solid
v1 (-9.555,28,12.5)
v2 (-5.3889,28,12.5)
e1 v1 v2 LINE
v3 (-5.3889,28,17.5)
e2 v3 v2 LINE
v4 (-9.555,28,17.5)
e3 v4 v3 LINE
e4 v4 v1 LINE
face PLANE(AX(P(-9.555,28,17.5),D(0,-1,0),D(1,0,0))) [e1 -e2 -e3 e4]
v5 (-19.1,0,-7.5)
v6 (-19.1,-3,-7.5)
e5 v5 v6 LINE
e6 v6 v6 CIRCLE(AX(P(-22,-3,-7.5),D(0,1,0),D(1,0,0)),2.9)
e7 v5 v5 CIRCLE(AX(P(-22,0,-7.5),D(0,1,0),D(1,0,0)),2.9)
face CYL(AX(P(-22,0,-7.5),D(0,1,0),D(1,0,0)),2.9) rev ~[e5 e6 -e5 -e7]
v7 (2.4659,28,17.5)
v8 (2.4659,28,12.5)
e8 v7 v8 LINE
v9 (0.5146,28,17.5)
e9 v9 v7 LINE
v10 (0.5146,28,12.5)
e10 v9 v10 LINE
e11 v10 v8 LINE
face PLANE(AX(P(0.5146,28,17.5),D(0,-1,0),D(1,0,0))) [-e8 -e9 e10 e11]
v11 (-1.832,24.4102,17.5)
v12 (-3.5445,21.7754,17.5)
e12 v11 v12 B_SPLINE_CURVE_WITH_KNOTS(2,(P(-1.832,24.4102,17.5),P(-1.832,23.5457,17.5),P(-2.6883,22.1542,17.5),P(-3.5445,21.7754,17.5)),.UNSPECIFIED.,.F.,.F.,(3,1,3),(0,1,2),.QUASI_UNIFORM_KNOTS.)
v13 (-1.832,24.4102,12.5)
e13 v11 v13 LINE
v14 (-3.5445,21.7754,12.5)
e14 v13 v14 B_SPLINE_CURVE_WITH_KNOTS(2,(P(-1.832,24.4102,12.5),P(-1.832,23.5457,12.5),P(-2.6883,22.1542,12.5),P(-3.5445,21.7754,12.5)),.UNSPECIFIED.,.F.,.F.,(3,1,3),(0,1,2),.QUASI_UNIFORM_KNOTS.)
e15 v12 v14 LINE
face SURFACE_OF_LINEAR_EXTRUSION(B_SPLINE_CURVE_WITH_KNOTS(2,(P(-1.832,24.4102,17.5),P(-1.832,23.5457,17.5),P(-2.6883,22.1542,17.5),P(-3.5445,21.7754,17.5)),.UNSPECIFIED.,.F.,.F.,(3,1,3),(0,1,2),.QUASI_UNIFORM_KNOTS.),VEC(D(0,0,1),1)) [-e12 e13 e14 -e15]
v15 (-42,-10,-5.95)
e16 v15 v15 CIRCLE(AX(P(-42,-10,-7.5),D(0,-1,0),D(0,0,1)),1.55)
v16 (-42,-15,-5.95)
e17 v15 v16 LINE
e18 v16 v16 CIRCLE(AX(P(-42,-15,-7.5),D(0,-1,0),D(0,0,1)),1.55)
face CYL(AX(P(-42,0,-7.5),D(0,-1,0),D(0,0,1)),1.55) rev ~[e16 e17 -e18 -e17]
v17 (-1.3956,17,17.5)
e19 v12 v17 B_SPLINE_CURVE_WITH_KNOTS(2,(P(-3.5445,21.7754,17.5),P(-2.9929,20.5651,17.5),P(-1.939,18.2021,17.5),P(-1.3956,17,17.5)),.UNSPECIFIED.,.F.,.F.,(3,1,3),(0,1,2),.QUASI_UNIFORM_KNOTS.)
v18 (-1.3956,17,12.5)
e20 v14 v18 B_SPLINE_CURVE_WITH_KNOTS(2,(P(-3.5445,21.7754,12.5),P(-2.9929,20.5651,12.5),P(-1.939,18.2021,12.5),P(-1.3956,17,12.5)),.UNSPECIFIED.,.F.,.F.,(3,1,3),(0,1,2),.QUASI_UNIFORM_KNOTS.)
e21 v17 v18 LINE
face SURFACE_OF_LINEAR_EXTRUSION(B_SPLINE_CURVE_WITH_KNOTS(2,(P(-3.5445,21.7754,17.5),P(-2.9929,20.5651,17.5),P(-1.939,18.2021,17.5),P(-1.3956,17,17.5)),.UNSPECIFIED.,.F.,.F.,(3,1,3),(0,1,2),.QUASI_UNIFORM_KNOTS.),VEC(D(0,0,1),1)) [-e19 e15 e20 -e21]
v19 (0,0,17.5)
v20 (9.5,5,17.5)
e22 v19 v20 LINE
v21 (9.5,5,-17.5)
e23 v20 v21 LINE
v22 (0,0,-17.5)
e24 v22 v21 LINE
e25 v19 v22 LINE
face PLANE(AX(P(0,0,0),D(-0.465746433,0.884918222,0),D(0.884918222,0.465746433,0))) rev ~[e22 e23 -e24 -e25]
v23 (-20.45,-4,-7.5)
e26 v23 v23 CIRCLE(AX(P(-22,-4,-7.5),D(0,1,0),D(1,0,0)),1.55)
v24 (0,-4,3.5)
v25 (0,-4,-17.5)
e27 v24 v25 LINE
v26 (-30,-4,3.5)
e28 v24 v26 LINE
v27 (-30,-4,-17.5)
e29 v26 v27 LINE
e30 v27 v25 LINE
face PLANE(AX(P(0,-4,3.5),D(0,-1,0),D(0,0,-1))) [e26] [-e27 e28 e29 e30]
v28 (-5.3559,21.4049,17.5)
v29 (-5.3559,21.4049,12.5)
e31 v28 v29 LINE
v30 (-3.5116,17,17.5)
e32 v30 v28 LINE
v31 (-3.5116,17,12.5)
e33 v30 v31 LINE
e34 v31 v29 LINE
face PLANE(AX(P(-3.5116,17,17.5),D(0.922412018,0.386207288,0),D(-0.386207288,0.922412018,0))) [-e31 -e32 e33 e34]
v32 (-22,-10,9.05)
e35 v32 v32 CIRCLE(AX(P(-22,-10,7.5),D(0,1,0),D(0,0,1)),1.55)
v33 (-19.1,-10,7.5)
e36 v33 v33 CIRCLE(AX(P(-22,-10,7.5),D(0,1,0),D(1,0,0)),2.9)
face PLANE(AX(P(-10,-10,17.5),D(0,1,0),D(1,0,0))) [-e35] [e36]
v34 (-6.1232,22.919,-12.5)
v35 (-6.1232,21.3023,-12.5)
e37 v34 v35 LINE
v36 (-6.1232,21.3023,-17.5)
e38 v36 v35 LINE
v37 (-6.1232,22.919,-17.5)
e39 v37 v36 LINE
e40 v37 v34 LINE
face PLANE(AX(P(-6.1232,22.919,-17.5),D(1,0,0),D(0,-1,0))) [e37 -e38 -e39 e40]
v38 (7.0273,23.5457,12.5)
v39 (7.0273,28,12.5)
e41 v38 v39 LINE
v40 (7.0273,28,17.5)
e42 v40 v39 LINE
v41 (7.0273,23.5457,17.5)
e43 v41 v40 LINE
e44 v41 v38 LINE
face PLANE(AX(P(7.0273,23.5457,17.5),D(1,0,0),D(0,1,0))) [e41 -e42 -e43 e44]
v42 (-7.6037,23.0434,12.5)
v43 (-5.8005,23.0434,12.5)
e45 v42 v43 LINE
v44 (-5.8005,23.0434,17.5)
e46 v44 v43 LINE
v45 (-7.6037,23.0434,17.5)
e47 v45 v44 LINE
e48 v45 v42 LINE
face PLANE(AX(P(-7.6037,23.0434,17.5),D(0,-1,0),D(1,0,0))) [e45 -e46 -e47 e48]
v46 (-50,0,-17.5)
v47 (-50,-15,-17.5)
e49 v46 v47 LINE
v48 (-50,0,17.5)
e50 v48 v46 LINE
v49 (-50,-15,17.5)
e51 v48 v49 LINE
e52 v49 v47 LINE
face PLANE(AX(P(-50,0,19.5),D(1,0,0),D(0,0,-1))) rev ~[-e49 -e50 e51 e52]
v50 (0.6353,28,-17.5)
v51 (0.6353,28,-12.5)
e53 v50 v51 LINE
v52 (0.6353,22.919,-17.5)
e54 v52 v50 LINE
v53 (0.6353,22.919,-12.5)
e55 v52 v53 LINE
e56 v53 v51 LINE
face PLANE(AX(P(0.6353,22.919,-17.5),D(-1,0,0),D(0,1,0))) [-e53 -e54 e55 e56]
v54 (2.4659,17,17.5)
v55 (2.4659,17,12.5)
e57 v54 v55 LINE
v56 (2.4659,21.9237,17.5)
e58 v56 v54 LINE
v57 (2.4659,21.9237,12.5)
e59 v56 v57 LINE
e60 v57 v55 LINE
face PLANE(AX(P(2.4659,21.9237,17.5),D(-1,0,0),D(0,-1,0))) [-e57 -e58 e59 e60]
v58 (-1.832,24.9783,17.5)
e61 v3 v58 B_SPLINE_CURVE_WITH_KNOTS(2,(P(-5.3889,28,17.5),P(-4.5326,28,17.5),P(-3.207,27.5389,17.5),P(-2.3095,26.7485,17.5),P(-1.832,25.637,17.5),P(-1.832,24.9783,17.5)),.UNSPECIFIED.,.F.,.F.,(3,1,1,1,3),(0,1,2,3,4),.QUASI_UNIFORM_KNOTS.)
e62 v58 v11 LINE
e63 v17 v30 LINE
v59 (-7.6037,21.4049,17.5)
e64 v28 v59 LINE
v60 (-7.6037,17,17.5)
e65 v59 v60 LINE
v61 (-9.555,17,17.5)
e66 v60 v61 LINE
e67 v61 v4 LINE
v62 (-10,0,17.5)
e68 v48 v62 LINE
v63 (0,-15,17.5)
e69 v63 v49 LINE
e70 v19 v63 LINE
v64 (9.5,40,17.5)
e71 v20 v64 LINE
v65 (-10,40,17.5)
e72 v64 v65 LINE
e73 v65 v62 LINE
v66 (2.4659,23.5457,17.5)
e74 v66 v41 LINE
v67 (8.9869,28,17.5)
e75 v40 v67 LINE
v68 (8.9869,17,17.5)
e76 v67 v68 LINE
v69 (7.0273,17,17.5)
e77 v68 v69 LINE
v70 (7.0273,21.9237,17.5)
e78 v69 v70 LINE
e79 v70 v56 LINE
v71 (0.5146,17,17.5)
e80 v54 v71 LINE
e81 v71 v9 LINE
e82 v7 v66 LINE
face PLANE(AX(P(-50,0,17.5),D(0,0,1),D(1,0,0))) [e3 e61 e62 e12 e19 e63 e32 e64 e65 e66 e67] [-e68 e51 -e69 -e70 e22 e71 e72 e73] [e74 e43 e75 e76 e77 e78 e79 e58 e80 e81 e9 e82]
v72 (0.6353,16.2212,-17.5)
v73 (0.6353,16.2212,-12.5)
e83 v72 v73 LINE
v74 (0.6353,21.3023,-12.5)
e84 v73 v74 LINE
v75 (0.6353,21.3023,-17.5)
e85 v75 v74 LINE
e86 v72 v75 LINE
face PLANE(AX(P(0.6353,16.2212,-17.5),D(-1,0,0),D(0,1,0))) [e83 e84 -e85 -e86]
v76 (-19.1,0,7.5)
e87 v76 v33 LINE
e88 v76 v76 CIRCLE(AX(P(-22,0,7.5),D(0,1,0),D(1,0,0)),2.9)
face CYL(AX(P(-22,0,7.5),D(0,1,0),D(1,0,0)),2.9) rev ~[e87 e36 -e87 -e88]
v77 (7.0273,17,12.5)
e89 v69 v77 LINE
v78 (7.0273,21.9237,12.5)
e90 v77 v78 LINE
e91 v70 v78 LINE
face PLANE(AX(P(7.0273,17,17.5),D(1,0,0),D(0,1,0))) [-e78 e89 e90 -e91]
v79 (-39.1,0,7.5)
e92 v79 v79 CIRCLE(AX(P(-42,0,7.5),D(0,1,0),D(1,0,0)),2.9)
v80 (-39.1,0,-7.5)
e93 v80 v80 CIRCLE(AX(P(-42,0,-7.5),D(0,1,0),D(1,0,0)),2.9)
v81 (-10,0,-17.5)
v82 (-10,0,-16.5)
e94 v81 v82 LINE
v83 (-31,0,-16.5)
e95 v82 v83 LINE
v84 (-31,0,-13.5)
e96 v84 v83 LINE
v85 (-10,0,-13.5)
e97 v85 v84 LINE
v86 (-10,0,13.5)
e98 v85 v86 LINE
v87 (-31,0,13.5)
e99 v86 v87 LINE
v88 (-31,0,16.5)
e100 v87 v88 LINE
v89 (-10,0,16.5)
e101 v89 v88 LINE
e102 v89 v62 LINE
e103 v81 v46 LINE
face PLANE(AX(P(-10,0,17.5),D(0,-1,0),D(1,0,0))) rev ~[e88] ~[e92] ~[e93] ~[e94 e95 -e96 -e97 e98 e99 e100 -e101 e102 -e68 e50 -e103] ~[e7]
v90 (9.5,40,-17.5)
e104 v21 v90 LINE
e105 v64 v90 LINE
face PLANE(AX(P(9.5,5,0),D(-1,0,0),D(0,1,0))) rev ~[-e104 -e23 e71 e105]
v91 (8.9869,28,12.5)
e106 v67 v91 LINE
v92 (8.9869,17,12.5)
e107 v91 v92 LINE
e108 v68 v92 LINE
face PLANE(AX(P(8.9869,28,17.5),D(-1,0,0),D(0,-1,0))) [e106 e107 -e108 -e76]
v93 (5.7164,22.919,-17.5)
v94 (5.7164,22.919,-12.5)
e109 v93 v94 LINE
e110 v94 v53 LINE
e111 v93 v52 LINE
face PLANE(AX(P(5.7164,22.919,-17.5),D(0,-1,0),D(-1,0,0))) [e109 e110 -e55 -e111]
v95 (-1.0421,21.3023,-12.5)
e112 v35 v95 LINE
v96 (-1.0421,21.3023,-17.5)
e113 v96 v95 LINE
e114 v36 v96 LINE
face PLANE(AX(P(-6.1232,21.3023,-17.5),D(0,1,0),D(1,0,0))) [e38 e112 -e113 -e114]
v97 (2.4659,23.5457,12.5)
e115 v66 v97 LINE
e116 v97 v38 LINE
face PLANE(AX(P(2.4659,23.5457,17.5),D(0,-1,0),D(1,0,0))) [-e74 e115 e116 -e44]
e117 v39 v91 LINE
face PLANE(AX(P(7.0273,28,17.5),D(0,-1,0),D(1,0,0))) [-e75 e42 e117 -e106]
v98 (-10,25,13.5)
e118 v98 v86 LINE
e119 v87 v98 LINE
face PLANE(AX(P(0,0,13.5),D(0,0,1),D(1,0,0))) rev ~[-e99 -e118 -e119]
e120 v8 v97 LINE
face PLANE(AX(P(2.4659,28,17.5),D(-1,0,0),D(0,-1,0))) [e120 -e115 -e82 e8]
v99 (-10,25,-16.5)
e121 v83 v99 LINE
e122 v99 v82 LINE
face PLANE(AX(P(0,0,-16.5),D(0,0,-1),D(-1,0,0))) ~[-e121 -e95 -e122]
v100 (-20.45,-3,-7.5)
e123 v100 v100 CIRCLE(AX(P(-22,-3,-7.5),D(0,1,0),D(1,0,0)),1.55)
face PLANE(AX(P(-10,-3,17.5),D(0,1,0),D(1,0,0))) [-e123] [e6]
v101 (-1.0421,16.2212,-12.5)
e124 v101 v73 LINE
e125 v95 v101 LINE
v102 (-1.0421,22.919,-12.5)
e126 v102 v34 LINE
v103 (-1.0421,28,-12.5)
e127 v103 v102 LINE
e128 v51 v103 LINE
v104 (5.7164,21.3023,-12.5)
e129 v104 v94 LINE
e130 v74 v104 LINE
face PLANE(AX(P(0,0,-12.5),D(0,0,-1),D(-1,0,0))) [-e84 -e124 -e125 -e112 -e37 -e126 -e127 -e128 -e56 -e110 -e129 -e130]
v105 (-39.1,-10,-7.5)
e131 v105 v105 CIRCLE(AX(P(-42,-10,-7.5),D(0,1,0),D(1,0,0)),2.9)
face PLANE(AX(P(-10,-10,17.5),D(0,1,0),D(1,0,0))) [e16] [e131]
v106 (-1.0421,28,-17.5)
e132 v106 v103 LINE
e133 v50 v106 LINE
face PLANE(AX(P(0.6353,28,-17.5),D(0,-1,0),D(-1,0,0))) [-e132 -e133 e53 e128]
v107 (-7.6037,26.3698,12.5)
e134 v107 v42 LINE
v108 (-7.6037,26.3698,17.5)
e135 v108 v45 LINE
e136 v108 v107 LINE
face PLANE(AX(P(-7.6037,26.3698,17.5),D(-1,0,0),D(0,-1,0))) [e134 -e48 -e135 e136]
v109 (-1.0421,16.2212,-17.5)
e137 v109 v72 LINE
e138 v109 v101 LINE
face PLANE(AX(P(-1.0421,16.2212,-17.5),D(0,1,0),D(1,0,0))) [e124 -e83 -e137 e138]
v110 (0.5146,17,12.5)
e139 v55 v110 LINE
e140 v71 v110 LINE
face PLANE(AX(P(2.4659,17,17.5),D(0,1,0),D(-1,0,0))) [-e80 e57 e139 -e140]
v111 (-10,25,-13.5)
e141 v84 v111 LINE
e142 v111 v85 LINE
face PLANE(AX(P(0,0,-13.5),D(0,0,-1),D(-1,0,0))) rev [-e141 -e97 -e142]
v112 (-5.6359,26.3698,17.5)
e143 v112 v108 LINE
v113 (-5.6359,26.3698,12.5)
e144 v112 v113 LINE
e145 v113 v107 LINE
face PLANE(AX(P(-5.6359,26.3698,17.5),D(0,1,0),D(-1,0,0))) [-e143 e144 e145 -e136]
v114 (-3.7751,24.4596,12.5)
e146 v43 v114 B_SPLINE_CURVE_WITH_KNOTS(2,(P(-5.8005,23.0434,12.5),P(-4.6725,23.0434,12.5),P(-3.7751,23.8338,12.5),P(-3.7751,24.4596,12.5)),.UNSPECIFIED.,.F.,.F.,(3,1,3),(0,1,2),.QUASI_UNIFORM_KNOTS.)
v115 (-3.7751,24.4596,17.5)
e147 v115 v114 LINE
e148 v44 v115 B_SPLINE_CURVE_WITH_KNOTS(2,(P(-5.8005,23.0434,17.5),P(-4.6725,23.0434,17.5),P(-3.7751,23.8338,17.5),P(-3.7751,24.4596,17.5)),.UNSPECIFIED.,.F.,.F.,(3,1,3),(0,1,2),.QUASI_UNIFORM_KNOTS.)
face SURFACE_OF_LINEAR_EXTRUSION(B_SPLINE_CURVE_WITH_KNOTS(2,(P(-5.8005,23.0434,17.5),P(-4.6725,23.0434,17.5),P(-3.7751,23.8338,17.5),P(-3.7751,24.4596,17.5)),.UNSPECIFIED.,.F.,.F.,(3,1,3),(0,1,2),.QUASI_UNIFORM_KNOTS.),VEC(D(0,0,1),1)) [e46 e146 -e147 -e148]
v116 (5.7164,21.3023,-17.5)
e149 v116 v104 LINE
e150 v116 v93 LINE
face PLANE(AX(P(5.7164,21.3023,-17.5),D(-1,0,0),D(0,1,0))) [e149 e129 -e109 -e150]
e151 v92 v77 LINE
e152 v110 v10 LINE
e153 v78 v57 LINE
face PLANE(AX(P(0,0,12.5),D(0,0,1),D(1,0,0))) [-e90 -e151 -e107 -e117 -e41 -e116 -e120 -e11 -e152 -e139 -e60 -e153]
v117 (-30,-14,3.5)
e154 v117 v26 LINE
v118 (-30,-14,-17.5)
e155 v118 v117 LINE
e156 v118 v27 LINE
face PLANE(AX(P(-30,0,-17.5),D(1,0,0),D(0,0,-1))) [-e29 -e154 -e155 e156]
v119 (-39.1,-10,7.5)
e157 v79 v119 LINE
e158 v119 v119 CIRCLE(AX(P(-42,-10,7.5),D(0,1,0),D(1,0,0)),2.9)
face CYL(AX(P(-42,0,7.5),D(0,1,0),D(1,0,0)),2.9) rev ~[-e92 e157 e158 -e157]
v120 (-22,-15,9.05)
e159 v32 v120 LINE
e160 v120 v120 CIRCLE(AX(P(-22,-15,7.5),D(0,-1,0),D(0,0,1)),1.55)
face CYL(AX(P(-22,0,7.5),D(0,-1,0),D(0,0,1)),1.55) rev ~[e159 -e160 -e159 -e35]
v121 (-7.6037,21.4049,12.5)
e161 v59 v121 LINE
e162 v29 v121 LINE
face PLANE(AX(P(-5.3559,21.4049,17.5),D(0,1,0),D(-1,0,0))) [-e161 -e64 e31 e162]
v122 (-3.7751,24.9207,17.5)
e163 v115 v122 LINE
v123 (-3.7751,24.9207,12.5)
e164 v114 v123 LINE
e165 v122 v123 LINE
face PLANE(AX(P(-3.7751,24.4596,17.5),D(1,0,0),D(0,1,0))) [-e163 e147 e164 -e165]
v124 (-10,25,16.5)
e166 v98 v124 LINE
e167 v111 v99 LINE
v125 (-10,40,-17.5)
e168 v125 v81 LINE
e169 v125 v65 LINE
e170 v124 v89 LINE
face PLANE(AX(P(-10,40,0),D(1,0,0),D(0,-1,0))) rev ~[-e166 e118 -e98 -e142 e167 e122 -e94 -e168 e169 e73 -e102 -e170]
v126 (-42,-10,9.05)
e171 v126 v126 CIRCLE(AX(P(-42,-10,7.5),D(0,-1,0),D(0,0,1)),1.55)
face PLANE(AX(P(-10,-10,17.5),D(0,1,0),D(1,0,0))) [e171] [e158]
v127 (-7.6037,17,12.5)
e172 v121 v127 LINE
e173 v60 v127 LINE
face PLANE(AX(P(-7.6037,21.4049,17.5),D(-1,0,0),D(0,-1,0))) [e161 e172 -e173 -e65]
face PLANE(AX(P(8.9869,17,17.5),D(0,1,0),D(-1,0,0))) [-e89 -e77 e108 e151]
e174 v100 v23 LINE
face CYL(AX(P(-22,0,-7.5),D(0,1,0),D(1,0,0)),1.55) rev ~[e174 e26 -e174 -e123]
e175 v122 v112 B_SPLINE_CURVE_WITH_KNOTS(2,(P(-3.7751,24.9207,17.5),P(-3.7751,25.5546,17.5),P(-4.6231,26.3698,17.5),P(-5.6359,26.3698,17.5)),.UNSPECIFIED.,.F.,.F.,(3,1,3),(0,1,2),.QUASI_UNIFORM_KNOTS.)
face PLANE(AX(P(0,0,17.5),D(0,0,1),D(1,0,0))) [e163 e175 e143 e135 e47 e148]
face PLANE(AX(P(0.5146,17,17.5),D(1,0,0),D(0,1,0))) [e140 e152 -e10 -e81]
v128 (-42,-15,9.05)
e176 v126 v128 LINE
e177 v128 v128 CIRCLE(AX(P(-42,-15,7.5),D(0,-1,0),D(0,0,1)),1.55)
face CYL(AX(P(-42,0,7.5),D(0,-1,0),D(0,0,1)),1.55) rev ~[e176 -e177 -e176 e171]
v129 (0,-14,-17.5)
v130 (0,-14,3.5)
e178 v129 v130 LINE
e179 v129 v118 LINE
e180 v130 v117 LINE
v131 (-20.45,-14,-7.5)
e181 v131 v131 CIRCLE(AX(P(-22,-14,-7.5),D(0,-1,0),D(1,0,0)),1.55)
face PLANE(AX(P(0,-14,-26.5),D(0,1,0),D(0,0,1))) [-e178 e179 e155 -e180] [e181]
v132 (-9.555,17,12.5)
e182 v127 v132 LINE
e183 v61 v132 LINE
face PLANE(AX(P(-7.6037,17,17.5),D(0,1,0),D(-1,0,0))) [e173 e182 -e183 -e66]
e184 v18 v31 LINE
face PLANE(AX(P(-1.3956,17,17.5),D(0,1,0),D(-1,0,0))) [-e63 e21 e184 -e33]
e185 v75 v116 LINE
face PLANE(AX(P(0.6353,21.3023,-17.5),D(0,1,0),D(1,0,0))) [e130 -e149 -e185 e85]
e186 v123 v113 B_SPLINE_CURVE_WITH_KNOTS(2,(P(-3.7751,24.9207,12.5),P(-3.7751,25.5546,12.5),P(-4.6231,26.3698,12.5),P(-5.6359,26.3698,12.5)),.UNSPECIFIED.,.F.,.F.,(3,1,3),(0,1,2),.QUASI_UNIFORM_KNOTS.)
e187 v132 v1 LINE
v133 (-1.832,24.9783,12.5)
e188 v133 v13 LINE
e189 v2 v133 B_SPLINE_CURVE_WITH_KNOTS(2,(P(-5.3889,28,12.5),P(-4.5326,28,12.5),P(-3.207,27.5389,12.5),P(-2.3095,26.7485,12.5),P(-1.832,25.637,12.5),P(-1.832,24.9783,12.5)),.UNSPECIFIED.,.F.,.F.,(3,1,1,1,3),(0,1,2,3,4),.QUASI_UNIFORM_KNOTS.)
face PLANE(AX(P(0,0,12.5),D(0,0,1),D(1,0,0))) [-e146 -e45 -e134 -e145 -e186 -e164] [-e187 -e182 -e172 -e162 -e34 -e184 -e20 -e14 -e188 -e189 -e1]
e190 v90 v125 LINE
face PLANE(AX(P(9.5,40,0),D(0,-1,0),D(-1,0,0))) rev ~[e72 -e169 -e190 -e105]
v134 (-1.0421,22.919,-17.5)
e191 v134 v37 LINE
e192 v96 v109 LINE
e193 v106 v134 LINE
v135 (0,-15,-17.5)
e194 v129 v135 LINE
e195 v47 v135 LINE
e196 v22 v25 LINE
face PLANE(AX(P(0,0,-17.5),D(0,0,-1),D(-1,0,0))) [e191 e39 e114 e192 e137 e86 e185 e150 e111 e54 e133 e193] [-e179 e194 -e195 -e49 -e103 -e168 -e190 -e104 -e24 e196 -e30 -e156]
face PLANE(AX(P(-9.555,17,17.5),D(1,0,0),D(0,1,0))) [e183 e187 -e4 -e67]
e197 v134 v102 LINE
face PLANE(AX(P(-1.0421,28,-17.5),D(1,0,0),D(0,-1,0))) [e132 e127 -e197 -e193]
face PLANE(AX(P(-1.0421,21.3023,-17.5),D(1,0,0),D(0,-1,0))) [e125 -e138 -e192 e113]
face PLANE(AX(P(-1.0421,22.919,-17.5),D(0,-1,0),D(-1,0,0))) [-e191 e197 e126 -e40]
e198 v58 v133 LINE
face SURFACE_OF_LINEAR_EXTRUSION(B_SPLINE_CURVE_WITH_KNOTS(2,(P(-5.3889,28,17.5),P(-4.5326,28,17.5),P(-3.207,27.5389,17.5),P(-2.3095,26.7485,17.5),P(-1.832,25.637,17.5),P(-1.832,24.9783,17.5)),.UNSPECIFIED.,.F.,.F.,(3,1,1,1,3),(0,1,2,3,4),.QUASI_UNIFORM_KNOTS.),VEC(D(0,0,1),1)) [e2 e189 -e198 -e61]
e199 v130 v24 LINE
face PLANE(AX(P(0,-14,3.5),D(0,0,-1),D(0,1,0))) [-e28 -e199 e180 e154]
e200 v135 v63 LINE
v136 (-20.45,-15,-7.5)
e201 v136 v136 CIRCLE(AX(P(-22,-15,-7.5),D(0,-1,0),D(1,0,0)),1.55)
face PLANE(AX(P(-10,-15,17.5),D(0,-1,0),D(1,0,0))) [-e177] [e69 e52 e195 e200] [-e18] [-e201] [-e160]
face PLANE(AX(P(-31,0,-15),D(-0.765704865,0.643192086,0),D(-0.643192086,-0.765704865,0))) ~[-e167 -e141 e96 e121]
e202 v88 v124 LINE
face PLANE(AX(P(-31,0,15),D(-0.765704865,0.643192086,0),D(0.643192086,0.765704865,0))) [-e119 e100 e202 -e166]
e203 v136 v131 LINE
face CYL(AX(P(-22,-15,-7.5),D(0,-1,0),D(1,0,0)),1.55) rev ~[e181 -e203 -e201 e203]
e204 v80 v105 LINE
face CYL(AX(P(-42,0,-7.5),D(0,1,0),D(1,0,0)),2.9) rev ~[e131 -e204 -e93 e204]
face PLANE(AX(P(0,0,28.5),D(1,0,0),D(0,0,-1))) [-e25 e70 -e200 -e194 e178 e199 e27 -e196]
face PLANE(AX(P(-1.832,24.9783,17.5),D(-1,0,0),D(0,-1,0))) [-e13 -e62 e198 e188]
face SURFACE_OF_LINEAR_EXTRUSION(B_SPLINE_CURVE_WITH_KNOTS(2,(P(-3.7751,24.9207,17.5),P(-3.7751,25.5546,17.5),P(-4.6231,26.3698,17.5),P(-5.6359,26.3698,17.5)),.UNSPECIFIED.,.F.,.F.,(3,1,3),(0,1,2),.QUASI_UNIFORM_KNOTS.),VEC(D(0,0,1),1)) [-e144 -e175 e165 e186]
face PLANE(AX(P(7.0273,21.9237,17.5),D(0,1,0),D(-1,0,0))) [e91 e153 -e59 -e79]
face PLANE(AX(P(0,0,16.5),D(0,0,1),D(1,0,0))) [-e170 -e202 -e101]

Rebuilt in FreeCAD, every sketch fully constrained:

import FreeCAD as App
import Part
import Sketcher
from FreeCAD import Vector
Q = App.Units.Quantity


def add_polygon(sketch, points):
    """Adds a closed chain of lines whose ends are joined by coincident constraints."""
    first, n = sketch.GeometryCount, len(points)
    for a, b in zip(points, points[1:] + points[:1]):
        sketch.addGeometry(Part.LineSegment(App.Vector(*a, 0), App.Vector(*b, 0)), False)
    for i in range(n):
        sketch.addConstraint(Sketcher.Constraint("Coincident", first + i, 2, first + (i + 1) % n, 1))

doc = App.newDocument("Part")
params = doc.addObject("Spreadsheet::Sheet", "Params")
for row, (alias, value) in enumerate([
    ("sketch1_width", "10 mm"),
    ("sketch1_height", "40 mm"),
    ("sketch1_height2", "35 mm"),
    ("pad1_length", "35 mm"),
    ("sketch2_width", "21 mm"),
    ("sketch2_height", "25 mm"),
    ("pad2_length", "3 mm"),
    ("sketch3_height", "39 mm"),
    ("sketch3_height2", "57 mm"),
    ("pad3_length", "15 mm"),
    ("sketch4_diameter", "3.1 mm"),
    ("hole_diameter", "3.1 mm"),
    ("sketch5_width", "10 mm"),
    ("sketch5_height", "30 mm"),
    ("pocket1_length", "30 mm"),
    ("sketch6_diameter", "5.8 mm"),
    ("pocket2_length", "3 mm"),
    ("sketch7_diameter", "3.1 mm"),
    ("pocket3_length", "1 mm"),
    ("pocket4_length", "5 mm"),
    ("pocket5_length", "5 mm"),
    ("sketch10_diameter", "5.8 mm"),
    ("sketch10_diameter2", "3.1 mm"),
    ("pocket6_length", "10 mm"),
    ("sketch11_diameter", "3.1 mm"),
    ("pocket7_length", "4 mm"),
    ("sketch12_width", "50 mm"),
    ("sketch12_height", "11 mm"),
    ("sketch12_height2", "2 mm"),
    ("pocket8_length", "30 mm"),
], start=1):
    params.set(f"A{row}", alias)
    params.set(f"B{row}", "=" + value)
    params.setAlias(f"B{row}", alias)

body = doc.addObject("PartDesign::Body", "Body")

sketch1 = doc.addObject("Sketcher::SketchObject", "Sketch")
body.addObject(sketch1)
sketch1.AttachmentSupport = (doc.XY_Plane, [""])
sketch1.MapMode = "FlatFace"
add_polygon(sketch1, [(10, 40), (-10, 40), (-10, 0), (0, 0), (10, 5)])
sketch1.addConstraint(Sketcher.Constraint("Horizontal", 0))
sketch1.addConstraint(Sketcher.Constraint("Vertical", 1))
sketch1.addConstraint(Sketcher.Constraint("Horizontal", 2))
sketch1.addConstraint(Sketcher.Constraint("Vertical", 4))
sketch1.addConstraint(Sketcher.Constraint("Coincident", 2, 2, -1, 1))
sketch1.addConstraint(Sketcher.Constraint("DistanceX", 2, 1, 2, 2, Q("10 mm")))
sketch1.addConstraint(Sketcher.Constraint("DistanceY", 1, 2, 1, 1, Q("40 mm")))
sketch1.addConstraint(Sketcher.Constraint("DistanceY", 4, 1, 4, 2, Q("35 mm")))
sketch1.addConstraint(Sketcher.Constraint("DistanceX", -1, 1, 3, 2, Q("9.5 mm")))
sketch1.setExpression("Constraints[10]", "Params.sketch1_width")
sketch1.setExpression("Constraints[11]", "Params.sketch1_height")
sketch1.setExpression("Constraints[12]", "Params.sketch1_height2")
pad1 = doc.addObject("PartDesign::Pad", "Pad")
body.addObject(pad1)
pad1.Profile = sketch1
pad1.setExpression("Length", "Params.pad1_length")
pad1.Midplane = True

sketch2 = doc.addObject("Sketcher::SketchObject", "Sketch001")
body.addObject(sketch2)
sketch2.AttachmentSupport = (doc.XY_Plane, [""])
sketch2.MapMode = "FlatFace"
sketch2.AttachmentOffset = App.Placement(Vector(0, 0, 15), App.Rotation())
add_polygon(sketch2, [(-10, 0), (-10, 25), (-31, 0)])
sketch2.addConstraint(Sketcher.Constraint("Vertical", 0))
sketch2.addConstraint(Sketcher.Constraint("Horizontal", 2))
sketch2.addConstraint(Sketcher.Constraint("PointOnObject", 1, 2, -1))
sketch2.addConstraint(Sketcher.Constraint("DistanceX", 2, 1, 2, 2, Q("21 mm")))
sketch2.addConstraint(Sketcher.Constraint("DistanceY", 0, 1, 0, 2, Q("25 mm")))
sketch2.addConstraint(Sketcher.Constraint("DistanceX", 0, 2, -1, 1, Q("10 mm")))
sketch2.setExpression("Constraints[6]", "Params.sketch2_width")
sketch2.setExpression("Constraints[7]", "Params.sketch2_height")
pad2 = doc.addObject("PartDesign::Pad", "Pad001")
body.addObject(pad2)
pad2.Profile = sketch2
pad2.setExpression("Length", "Params.pad2_length")
pad2.Midplane = True
doc.recompute()

mirrored = doc.addObject("PartDesign::Mirrored", "Mirrored")
body.addObject(mirrored)
mirrored.Originals = [pad2]
mirrored.MirrorPlane = (doc.XY_Plane, [""])
body.Tip = mirrored

sketch3 = doc.addObject("Sketcher::SketchObject", "Sketch002")
body.addObject(sketch3)
sketch3.AttachmentSupport = (doc.XZ_Plane, [""])
sketch3.MapMode = "FlatFace"
add_polygon(sketch3, [(-25, 28), (-50, 20), (-50, -20), (-25, -28), (0, -28), (0, 28)])
sketch3.addConstraint(Sketcher.Constraint("Vertical", 1))
sketch3.addConstraint(Sketcher.Constraint("Horizontal", 3))
sketch3.addConstraint(Sketcher.Constraint("Vertical", 4))
sketch3.addConstraint(Sketcher.Constraint("Horizontal", 5))
sketch3.addConstraint(Sketcher.Constraint("Symmetric", 3, 2, 4, 2, -1, 1))
sketch3.addConstraint(Sketcher.Constraint("Vertical", 2, 2, 5, 2))
sketch3.addConstraint(Sketcher.Constraint("Equal", 0, 2))
sketch3.addConstraint(Sketcher.Constraint("DistanceY", 1, 2, 1, 1, Q("39 mm")))
sketch3.addConstraint(Sketcher.Constraint("DistanceY", 4, 1, 4, 2, Q("57 mm")))
sketch3.addConstraint(Sketcher.Constraint("DistanceX", 0, 2, -1, 1, Q("50 mm")))
sketch3.addConstraint(Sketcher.Constraint("Angle", 0, Q("-160 deg")))
sketch3.setExpression("Constraints[13]", "Params.sketch3_height")
sketch3.setExpression("Constraints[14]", "Params.sketch3_height2")
pad3 = doc.addObject("PartDesign::Pad", "Pad002")
body.addObject(pad3)
pad3.Profile = sketch3
pad3.setExpression("Length", "Params.pad3_length")

sketch4 = doc.addObject("Sketcher::SketchObject", "Sketch003")
body.addObject(sketch4)
sketch4.AttachmentSupport = (doc.XZ_Plane, [""])
sketch4.MapMode = "FlatFace"
sketch4.addGeometry(Part.Circle(Vector(-42, 7.5, 0), Vector(0, 0, 1), 1.6), False)
sketch4.addGeometry(Part.Circle(Vector(-22, 7.5, 0), Vector(0, 0, 1), 1.6), False)
sketch4.addGeometry(Part.Circle(Vector(-42, -7.5, 0), Vector(0, 0, 1), 1.6), False)
sketch4.addConstraint(Sketcher.Constraint("Equal", 0, 1))
sketch4.addConstraint(Sketcher.Constraint("Equal", 1, 2))
sketch4.addConstraint(Sketcher.Constraint("Symmetric", 0, 3, 2, 3, -1))
sketch4.addConstraint(Sketcher.Constraint("Horizontal", 0, 3, 1, 3))
sketch4.addConstraint(Sketcher.Constraint("Diameter", 0, Q("3.1 mm")))
sketch4.addConstraint(Sketcher.Constraint("DistanceX", 0, 3, -1, 1, Q("42 mm")))
sketch4.addConstraint(Sketcher.Constraint("DistanceX", 1, 3, -1, 1, Q("22 mm")))
sketch4.addConstraint(Sketcher.Constraint("DistanceY", 2, 3, 0, 3, Q("15 mm")))
sketch4.setExpression("Constraints[4]", "Params.sketch4_diameter")
doc.recompute()
hole = doc.addObject("PartDesign::Hole", "Hole")
body.addObject(hole)
hole.Profile = sketch4
hole.ThreadType = "None"
hole.setExpression("Diameter", "Params.hole_diameter")
hole.DepthType = "ThroughAll"
hole.Reversed = True

sketch5 = doc.addObject("Sketcher::SketchObject", "Sketch004")
body.addObject(sketch5)
sketch5.AttachmentSupport = (doc.YZ_Plane, [""])
sketch5.MapMode = "FlatFace"
add_polygon(sketch5, [(-4, -26), (-4, 4), (-14, 4), (-14, -26)])
sketch5.addConstraint(Sketcher.Constraint("Vertical", 0))
sketch5.addConstraint(Sketcher.Constraint("Horizontal", 1))
sketch5.addConstraint(Sketcher.Constraint("Vertical", 2))
sketch5.addConstraint(Sketcher.Constraint("Horizontal", 3))
sketch5.addConstraint(Sketcher.Constraint("DistanceX", 1, 2, 1, 1, Q("10 mm")))
sketch5.addConstraint(Sketcher.Constraint("DistanceY", 0, 1, 0, 2, Q("30 mm")))
sketch5.addConstraint(Sketcher.Constraint("DistanceX", 0, 2, -1, 1, Q("4 mm")))
sketch5.addConstraint(Sketcher.Constraint("DistanceY", -1, 1, 0, 2, Q("3.5 mm")))
sketch5.setExpression("Constraints[8]", "Params.sketch5_width")
sketch5.setExpression("Constraints[9]", "Params.sketch5_height")
pocket1 = doc.addObject("PartDesign::Pocket", "Pocket")
body.addObject(pocket1)
pocket1.Profile = sketch5
pocket1.setExpression("Length", "Params.pocket1_length")

sketch6 = doc.addObject("Sketcher::SketchObject", "Sketch005")
body.addObject(sketch6)
sketch6.AttachmentSupport = (doc.XZ_Plane, [""])
sketch6.MapMode = "FlatFace"
sketch6.addGeometry(Part.Circle(Vector(-22, -7.5, 0), Vector(0, 0, 1), 2.9), False)
sketch6.addConstraint(Sketcher.Constraint("Diameter", 0, Q("5.8 mm")))
sketch6.addConstraint(Sketcher.Constraint("DistanceX", 0, 3, -1, 1, Q("22 mm")))
sketch6.addConstraint(Sketcher.Constraint("DistanceY", 0, 3, -1, 1, Q("7.5 mm")))
sketch6.setExpression("Constraints[0]", "Params.sketch6_diameter")
pocket2 = doc.addObject("PartDesign::Pocket", "Pocket001")
body.addObject(pocket2)
pocket2.Profile = sketch6
pocket2.setExpression("Length", "Params.pocket2_length")
pocket2.Reversed = True

sketch7 = doc.addObject("Sketcher::SketchObject", "Sketch006")
body.addObject(sketch7)
sketch7.AttachmentSupport = (doc.XZ_Plane, [""])
sketch7.MapMode = "FlatFace"
sketch7.AttachmentOffset = App.Placement(Vector(0, 0, 15), App.Rotation())
sketch7.addGeometry(Part.Circle(Vector(-22, -7.5, 0), Vector(0, 0, 1), 1.6), False)
sketch7.addConstraint(Sketcher.Constraint("Diameter", 0, Q("3.1 mm")))
sketch7.addConstraint(Sketcher.Constraint("DistanceX", 0, 3, -1, 1, Q("22 mm")))
sketch7.addConstraint(Sketcher.Constraint("DistanceY", 0, 3, -1, 1, Q("7.5 mm")))
sketch7.setExpression("Constraints[0]", "Params.sketch7_diameter")
pocket3 = doc.addObject("PartDesign::Pocket", "Pocket002")
body.addObject(pocket3)
pocket3.Profile = sketch7
pocket3.setExpression("Length", "Params.pocket3_length")

sketch8 = doc.addObject("Sketcher::SketchObject", "Sketch007")
body.addObject(sketch8)
sketch8.AttachmentSupport = (doc.XY_Plane, [""])
sketch8.MapMode = "FlatFace"
sketch8.AttachmentOffset = App.Placement(Vector(0, 0, 17.5), App.Rotation())
sketch8.addGeometry(Part.LineSegment(Vector(-7.6037, 21.4049, 0), Vector(-5.3559, 21.4049, 0)), False)
sketch8.addGeometry(Part.LineSegment(Vector(-5.3559, 21.4049, 0), Vector(-3.5116, 17, 0)), False)
sketch8.addGeometry(Part.LineSegment(Vector(-3.5116, 17, 0), Vector(-1.3956, 17, 0)), False)
sketch8.addGeometry(Part.BSplineCurve([Vector(-3.5445, 21.7754, 0), Vector(-2.9929, 20.5651, 0), Vector(-1.939, 18.2021, 0), Vector(-1.3956, 17, 0)], [3, 1, 3], [0, 1, 2], False, 2, [1, 1, 1, 1], False), False)
sketch8.addGeometry(Part.BSplineCurve([Vector(-1.832, 24.4102, 0), Vector(-1.832, 23.5457, 0), Vector(-2.6883, 22.1542, 0), Vector(-3.5445, 21.7754, 0)], [3, 1, 3], [0, 1, 2], False, 2, [1, 1, 1, 1], False), False)
sketch8.addGeometry(Part.LineSegment(Vector(-1.832, 24.4102, 0), Vector(-1.832, 24.9783, 0)), False)
sketch8.addGeometry(Part.BSplineCurve([Vector(-5.3889, 28, 0), Vector(-4.5326, 28, 0), Vector(-3.207, 27.5389, 0), Vector(-2.3095, 26.7485, 0), Vector(-1.832, 25.637, 0), Vector(-1.832, 24.9783, 0)], [3, 1, 1, 1, 3], [0, 1, 2, 3, 4], False, 2, [1, 1, 1, 1, 1, 1], False), False)
sketch8.addGeometry(Part.LineSegment(Vector(-5.3889, 28, 0), Vector(-9.555, 28, 0)), False)
sketch8.addGeometry(Part.LineSegment(Vector(-9.555, 28, 0), Vector(-9.555, 17, 0)), False)
sketch8.addGeometry(Part.LineSegment(Vector(-9.555, 17, 0), Vector(-7.6037, 17, 0)), False)
sketch8.addGeometry(Part.LineSegment(Vector(-7.6037, 17, 0), Vector(-7.6037, 21.4049, 0)), False)
sketch8.addGeometry(Part.LineSegment(Vector(-7.6037, 23.0434, 0), Vector(-7.6037, 26.3698, 0)), False)
sketch8.addGeometry(Part.LineSegment(Vector(-7.6037, 26.3698, 0), Vector(-5.6359, 26.3698, 0)), False)
sketch8.addGeometry(Part.BSplineCurve([Vector(-3.7751, 24.9207, 0), Vector(-3.7751, 25.5546, 0), Vector(-4.6231, 26.3698, 0), Vector(-5.6359, 26.3698, 0)], [3, 1, 3], [0, 1, 2], False, 2, [1, 1, 1, 1], False), False)
sketch8.addGeometry(Part.LineSegment(Vector(-3.7751, 24.9207, 0), Vector(-3.7751, 24.4596, 0)), False)
sketch8.addGeometry(Part.BSplineCurve([Vector(-5.8005, 23.0434, 0), Vector(-4.6725, 23.0434, 0), Vector(-3.7751, 23.8338, 0), Vector(-3.7751, 24.4596, 0)], [3, 1, 3], [0, 1, 2], False, 2, [1, 1, 1, 1], False), False)
sketch8.addGeometry(Part.LineSegment(Vector(-5.8005, 23.0434, 0), Vector(-7.6037, 23.0434, 0)), False)
add_polygon(sketch8, [(2.4659, 21.9237), (7.0273, 21.9237), (7.0273, 17), (8.9869, 17), (8.9869, 28), (7.0273, 28), (7.0273, 23.5457), (2.4659, 23.5457), (2.4659, 28), (0.5146, 28), (0.5146, 17), (2.4659, 17)])
sketch8.addConstraint(Sketcher.Constraint("Block", 3))
sketch8.addConstraint(Sketcher.Constraint("Block", 4))
sketch8.addConstraint(Sketcher.Constraint("Block", 6))
sketch8.addConstraint(Sketcher.Constraint("Block", 13))
sketch8.addConstraint(Sketcher.Constraint("Block", 15))
sketch8.addConstraint(Sketcher.Constraint("Coincident", 0, 2, 1, 1))
sketch8.addConstraint(Sketcher.Constraint("Coincident", 1, 2, 2, 1))
sketch8.addConstraint(Sketcher.Constraint("Coincident", 2, 2, 3, 2))
sketch8.addConstraint(Sketcher.Constraint("Coincident", 4, 1, 5, 1))
sketch8.addConstraint(Sketcher.Constraint("Coincident", 5, 2, 6, 2))
sketch8.addConstraint(Sketcher.Constraint("Coincident", 6, 1, 7, 1))
sketch8.addConstraint(Sketcher.Constraint("Coincident", 7, 2, 8, 1))
sketch8.addConstraint(Sketcher.Constraint("Coincident", 8, 2, 9, 1))
sketch8.addConstraint(Sketcher.Constraint("Coincident", 9, 2, 10, 1))
sketch8.addConstraint(Sketcher.Constraint("Coincident", 10, 2, 0, 1))
sketch8.addConstraint(Sketcher.Constraint("Coincident", 11, 2, 12, 1))
sketch8.addConstraint(Sketcher.Constraint("Coincident", 12, 2, 13, 2))
sketch8.addConstraint(Sketcher.Constraint("Coincident", 13, 1, 14, 1))
sketch8.addConstraint(Sketcher.Constraint("Coincident", 14, 2, 15, 2))
sketch8.addConstraint(Sketcher.Constraint("Coincident", 15, 1, 16, 1))
sketch8.addConstraint(Sketcher.Constraint("Coincident", 16, 2, 11, 1))
sketch8.addConstraint(Sketcher.Constraint("Horizontal", 0))
sketch8.addConstraint(Sketcher.Constraint("Horizontal", 2))
sketch8.addConstraint(Sketcher.Constraint("Horizontal", 7))
sketch8.addConstraint(Sketcher.Constraint("Vertical", 8))
sketch8.addConstraint(Sketcher.Constraint("Horizontal", 9))
sketch8.addConstraint(Sketcher.Constraint("Vertical", 10))
sketch8.addConstraint(Sketcher.Constraint("Vertical", 11))
sketch8.addConstraint(Sketcher.Constraint("Horizontal", 12))
sketch8.addConstraint(Sketcher.Constraint("Horizontal", 16))
sketch8.addConstraint(Sketcher.Constraint("Horizontal", 17))
sketch8.addConstraint(Sketcher.Constraint("Vertical", 18))
sketch8.addConstraint(Sketcher.Constraint("Horizontal", 19))
sketch8.addConstraint(Sketcher.Constraint("Vertical", 20))
sketch8.addConstraint(Sketcher.Constraint("Horizontal", 21))
sketch8.addConstraint(Sketcher.Constraint("Vertical", 22))
sketch8.addConstraint(Sketcher.Constraint("Horizontal", 23))
sketch8.addConstraint(Sketcher.Constraint("Vertical", 24))
sketch8.addConstraint(Sketcher.Constraint("Horizontal", 25))
sketch8.addConstraint(Sketcher.Constraint("Vertical", 26))
sketch8.addConstraint(Sketcher.Constraint("Horizontal", 27))
sketch8.addConstraint(Sketcher.Constraint("Vertical", 28))
sketch8.addConstraint(Sketcher.Constraint("Horizontal", 2, 2, 8, 2))
sketch8.addConstraint(Sketcher.Constraint("Horizontal", 9, 2, 18, 2))
sketch8.addConstraint(Sketcher.Constraint("Horizontal", 7, 2, 20, 2))
sketch8.addConstraint(Sketcher.Constraint("Horizontal", 21, 2, 24, 2))
sketch8.addConstraint(Sketcher.Constraint("Horizontal", 19, 2, 26, 2))
sketch8.addConstraint(Sketcher.Constraint("Vertical", 10, 2, 11, 2))
sketch8.addConstraint(Sketcher.Constraint("Vertical", 18, 2, 21, 2))
sketch8.addConstraint(Sketcher.Constraint("Vertical", 24, 2, 27, 2))
sketch8.addConstraint(Sketcher.Constraint("Equal", 9, 25))
sketch8.addConstraint(Sketcher.Constraint("DistanceX", 2, 1, 2, 2, Q("2.116 mm")))
sketch8.addConstraint(Sketcher.Constraint("DistanceX", 7, 2, 7, 1, Q("4.166 mm")))
sketch8.addConstraint(Sketcher.Constraint("DistanceY", 10, 1, 10, 2, Q("4.405 mm")))
sketch8.addConstraint(Sketcher.Constraint("DistanceX", 12, 2, 0, 2, Q("0.28 mm")))
sketch8.addConstraint(Sketcher.Constraint("DistanceX", 0, 1, 0, 2, Q("2.2478 mm")))
sketch8.addConstraint(Sketcher.Constraint("DistanceX", 17, 1, 17, 2, Q("4.5614 mm")))
sketch8.addConstraint(Sketcher.Constraint("DistanceX", 19, 1, 19, 2, Q("1.9596 mm")))
sketch8.addConstraint(Sketcher.Constraint("DistanceY", 18, 2, 18, 1, Q("4.9237 mm")))
sketch8.addConstraint(Sketcher.Constraint("DistanceY", 22, 2, 22, 1, Q("4.4543 mm")))
sketch8.addConstraint(Sketcher.Constraint("DistanceX", -1, 1, 19, 2, Q("8.987 mm")))
pocket4 = doc.addObject("PartDesign::Pocket", "Pocket003")
body.addObject(pocket4)
pocket4.Profile = sketch8
pocket4.setExpression("Length", "Params.pocket4_length")

sketch9 = doc.addObject("Sketcher::SketchObject", "Sketch008")
body.addObject(sketch9)
sketch9.AttachmentSupport = (doc.XY_Plane, [""])
sketch9.MapMode = "FlatFace"
sketch9.AttachmentOffset = App.Placement(Vector(0, 0, -17.5), App.Rotation())
add_polygon(sketch9, [(-1, 21.3), (-6.1, 21.3), (-6.1, 22.9), (-1, 22.9), (-1, 28), (0.6, 28), (0.6, 22.9), (5.7, 22.9), (5.7, 21.3), (0.6, 21.3), (0.6, 16.2), (-1, 16.2)])
sketch9.addConstraint(Sketcher.Constraint("Horizontal", 0))
sketch9.addConstraint(Sketcher.Constraint("Vertical", 1))
sketch9.addConstraint(Sketcher.Constraint("Horizontal", 2))
sketch9.addConstraint(Sketcher.Constraint("Vertical", 3))
sketch9.addConstraint(Sketcher.Constraint("Horizontal", 4))
sketch9.addConstraint(Sketcher.Constraint("Vertical", 5))
sketch9.addConstraint(Sketcher.Constraint("Horizontal", 6))
sketch9.addConstraint(Sketcher.Constraint("Vertical", 7))
sketch9.addConstraint(Sketcher.Constraint("Horizontal", 8))
sketch9.addConstraint(Sketcher.Constraint("Vertical", 9))
sketch9.addConstraint(Sketcher.Constraint("Horizontal", 10))
sketch9.addConstraint(Sketcher.Constraint("Vertical", 11))
sketch9.addConstraint(Sketcher.Constraint("Horizontal", 2, 2, 5, 2))
sketch9.addConstraint(Sketcher.Constraint("Horizontal", 0, 2, 7, 2))
sketch9.addConstraint(Sketcher.Constraint("Vertical", 5, 2, 8, 2))
sketch9.addConstraint(Sketcher.Constraint("Vertical", 3, 2, 10, 2))
sketch9.addConstraint(Sketcher.Constraint("Equal", 2, 6))
sketch9.addConstraint(Sketcher.Constraint("Equal", 8, 3))
sketch9.addConstraint(Sketcher.Constraint("Equal", 5, 9))
sketch9.addConstraint(Sketcher.Constraint("DistanceY", -1, 1, 3, 2, Q("28 mm")))
sketch9.addConstraint(Sketcher.Constraint("DistanceX", 0, 2, 0, 1, Q("5.081 mm")))
sketch9.addConstraint(Sketcher.Constraint("DistanceX", 4, 1, 4, 2, Q("1.6774 mm")))
sketch9.addConstraint(Sketcher.Constraint("DistanceY", 1, 1, 1, 2, Q("1.6167 mm")))
sketch9.addConstraint(Sketcher.Constraint("DistanceX", 2, 2, -1, 1, Q("1.042 mm")))
pocket5 = doc.addObject("PartDesign::Pocket", "Pocket004")
body.addObject(pocket5)
pocket5.Profile = sketch9
pocket5.setExpression("Length", "Params.pocket5_length")
pocket5.Reversed = True

sketch10 = doc.addObject("Sketcher::SketchObject", "Sketch009")
body.addObject(sketch10)
sketch10.AttachmentSupport = (doc.XZ_Plane, [""])
sketch10.MapMode = "FlatFace"
sketch10.addGeometry(Part.Circle(Vector(-42, -7.5, 0), Vector(0, 0, 1), 2.9), False)
sketch10.addGeometry(Part.Circle(Vector(-42, 7.5, 0), Vector(0, 0, 1), 2.9), False)
sketch10.addGeometry(Part.Circle(Vector(-22, 7.5, 0), Vector(0, 0, 1), 2.9), False)
sketch10.addGeometry(Part.Circle(Vector(-22, 7.5, 0), Vector(0, 0, 1), 1.6), False)
sketch10.addConstraint(Sketcher.Constraint("Coincident", 3, 3, 2, 3))
sketch10.addConstraint(Sketcher.Constraint("Equal", 0, 1))
sketch10.addConstraint(Sketcher.Constraint("Equal", 1, 2))
sketch10.addConstraint(Sketcher.Constraint("Symmetric", 0, 3, 1, 3, -1))
sketch10.addConstraint(Sketcher.Constraint("Horizontal", 1, 3, 2, 3))
sketch10.addConstraint(Sketcher.Constraint("Diameter", 0, Q("5.8 mm")))
sketch10.addConstraint(Sketcher.Constraint("Diameter", 3, Q("3.1 mm")))
sketch10.addConstraint(Sketcher.Constraint("DistanceX", 0, 3, -1, 1, Q("42 mm")))
sketch10.addConstraint(Sketcher.Constraint("DistanceX", 2, 3, -1, 1, Q("22 mm")))
sketch10.addConstraint(Sketcher.Constraint("DistanceY", 0, 3, 1, 3, Q("15 mm")))
sketch10.setExpression("Constraints[5]", "Params.sketch10_diameter")
sketch10.setExpression("Constraints[6]", "Params.sketch10_diameter2")
pocket6 = doc.addObject("PartDesign::Pocket", "Pocket005")
body.addObject(pocket6)
pocket6.Profile = sketch10
pocket6.setExpression("Length", "Params.pocket6_length")
pocket6.Reversed = True

sketch11 = doc.addObject("Sketcher::SketchObject", "Sketch010")
body.addObject(sketch11)
sketch11.AttachmentSupport = (doc.XZ_Plane, [""])
sketch11.MapMode = "FlatFace"
sketch11.addGeometry(Part.Circle(Vector(-22, -7.5, 0), Vector(0, 0, 1), 1.6), False)
sketch11.addConstraint(Sketcher.Constraint("Diameter", 0, Q("3.1 mm")))
sketch11.addConstraint(Sketcher.Constraint("DistanceX", 0, 3, -1, 1, Q("22 mm")))
sketch11.addConstraint(Sketcher.Constraint("DistanceY", 0, 3, -1, 1, Q("7.5 mm")))
sketch11.setExpression("Constraints[0]", "Params.sketch11_diameter")
pocket7 = doc.addObject("PartDesign::Pocket", "Pocket006")
body.addObject(pocket7)
pocket7.Profile = sketch11
pocket7.setExpression("Length", "Params.pocket7_length")
pocket7.Reversed = True

sketch12 = doc.addObject("Sketcher::SketchObject", "Sketch011")
body.addObject(sketch12)
sketch12.AttachmentSupport = (doc.XZ_Plane, [""])
sketch12.MapMode = "FlatFace"
add_polygon(sketch12, [(-50, -17.5), (0, -17.5), (0, -28.5), (-25.3, -28.5), (-50, -19.5)])
add_polygon(sketch12, [(0, 17.5), (-50, 17.5), (-50, 19.5), (-25.3, 28.5), (0, 28.5)])
sketch12.addConstraint(Sketcher.Constraint("Horizontal", 0))
sketch12.addConstraint(Sketcher.Constraint("Vertical", 1))
sketch12.addConstraint(Sketcher.Constraint("Horizontal", 2))
sketch12.addConstraint(Sketcher.Constraint("Vertical", 4))
sketch12.addConstraint(Sketcher.Constraint("Horizontal", 5))
sketch12.addConstraint(Sketcher.Constraint("Vertical", 6))
sketch12.addConstraint(Sketcher.Constraint("Horizontal", 8))
sketch12.addConstraint(Sketcher.Constraint("Vertical", 9))
sketch12.addConstraint(Sketcher.Constraint("Symmetric", 1, 2, 8, 2, -1, 1))
sketch12.addConstraint(Sketcher.Constraint("Symmetric", 4, 2, 5, 2, -1))
sketch12.addConstraint(Sketcher.Constraint("PointOnObject", 0, 2, -2))
sketch12.addConstraint(Sketcher.Constraint("Vertical", 2, 2, 7, 2))
sketch12.addConstraint(Sketcher.Constraint("Equal", 4, 6))
sketch12.addConstraint(Sketcher.Constraint("DistanceX", 0, 1, 0, 2, Q("50 mm")))
sketch12.addConstraint(Sketcher.Constraint("DistanceY", 1, 2, 1, 1, Q("11 mm")))
sketch12.addConstraint(Sketcher.Constraint("DistanceY", 4, 1, 4, 2, Q("2 mm")))
sketch12.addConstraint(Sketcher.Constraint("Angle", 3, Q("160 deg")))
sketch12.addConstraint(Sketcher.Constraint("DistanceY", 4, 2, 5, 2, Q("35 mm")))
sketch12.setExpression("Constraints[23]", "Params.sketch12_width")
sketch12.setExpression("Constraints[24]", "Params.sketch12_height")
sketch12.setExpression("Constraints[25]", "Params.sketch12_height2")
pocket8 = doc.addObject("PartDesign::Pocket", "Pocket007")
body.addObject(pocket8)
pocket8.Profile = sketch12
pocket8.setExpression("Length", "Params.pocket8_length")
pocket8.Reversed = True

doc.recompute()
